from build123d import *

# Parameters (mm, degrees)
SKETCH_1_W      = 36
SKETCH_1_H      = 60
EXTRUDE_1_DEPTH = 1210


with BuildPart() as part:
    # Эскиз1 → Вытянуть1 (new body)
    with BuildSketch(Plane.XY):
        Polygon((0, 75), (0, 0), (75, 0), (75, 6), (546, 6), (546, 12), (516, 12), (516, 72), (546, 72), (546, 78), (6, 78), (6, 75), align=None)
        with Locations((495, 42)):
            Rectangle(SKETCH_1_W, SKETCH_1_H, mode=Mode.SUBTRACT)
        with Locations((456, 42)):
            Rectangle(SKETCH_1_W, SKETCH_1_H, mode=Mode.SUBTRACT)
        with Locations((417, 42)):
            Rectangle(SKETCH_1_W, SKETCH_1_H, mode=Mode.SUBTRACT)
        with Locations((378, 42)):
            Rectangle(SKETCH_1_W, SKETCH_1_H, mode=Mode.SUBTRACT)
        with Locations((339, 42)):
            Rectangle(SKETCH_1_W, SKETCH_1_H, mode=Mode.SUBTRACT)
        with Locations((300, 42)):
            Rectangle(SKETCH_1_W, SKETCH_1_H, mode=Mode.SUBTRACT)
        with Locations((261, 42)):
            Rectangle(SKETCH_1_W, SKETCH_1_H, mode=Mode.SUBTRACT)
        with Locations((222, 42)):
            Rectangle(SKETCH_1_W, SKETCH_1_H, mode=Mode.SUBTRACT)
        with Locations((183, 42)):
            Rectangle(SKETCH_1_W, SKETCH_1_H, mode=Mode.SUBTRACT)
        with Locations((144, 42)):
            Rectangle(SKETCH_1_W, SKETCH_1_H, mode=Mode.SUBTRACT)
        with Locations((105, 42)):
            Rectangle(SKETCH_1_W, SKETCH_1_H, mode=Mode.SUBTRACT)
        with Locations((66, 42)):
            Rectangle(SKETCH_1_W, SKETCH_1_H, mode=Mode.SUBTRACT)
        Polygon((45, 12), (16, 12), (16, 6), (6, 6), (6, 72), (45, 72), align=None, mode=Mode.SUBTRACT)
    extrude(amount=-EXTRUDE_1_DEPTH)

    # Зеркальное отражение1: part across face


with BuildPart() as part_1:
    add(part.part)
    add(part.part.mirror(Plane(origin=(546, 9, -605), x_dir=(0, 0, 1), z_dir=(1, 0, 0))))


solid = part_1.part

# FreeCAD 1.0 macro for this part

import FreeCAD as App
import Part
import Sketcher

doc = App.newDocument("Part")
body = doc.addObject("PartDesign::Body", "Body")

# Sketch on XY plane
sketch1 = body.newObject("Sketcher::SketchObject", "Sketch")
sketch1.AttachmentSupport = (doc.getObject("XY_Plane"), [""])
sketch1.MapMode = "FlatFace"
sketch1.addGeometry([
    Part.LineSegment(App.Vector(0, 75, 0), App.Vector(0, 0, 0)),  # 0
    Part.LineSegment(App.Vector(0, 0, 0), App.Vector(75, 0, 0)),  # 1
    Part.LineSegment(App.Vector(75, 0, 0), App.Vector(75, 6, 0)),  # 2
    Part.LineSegment(App.Vector(75, 6, 0), App.Vector(546, 6, 0)),  # 3
    Part.LineSegment(App.Vector(546, 6, 0), App.Vector(546, 12, 0)),  # 4
    Part.LineSegment(App.Vector(546, 12, 0), App.Vector(516, 12, 0)),  # 5
    Part.LineSegment(App.Vector(516, 12, 0), App.Vector(516, 72, 0)),  # 6
    Part.LineSegment(App.Vector(516, 72, 0), App.Vector(546, 72, 0)),  # 7
    Part.LineSegment(App.Vector(546, 72, 0), App.Vector(546, 78, 0)),  # 8
    Part.LineSegment(App.Vector(546, 78, 0), App.Vector(6, 78, 0)),  # 9
    Part.LineSegment(App.Vector(6, 78, 0), App.Vector(6, 75, 0)),  # 10
    Part.LineSegment(App.Vector(6, 75, 0), App.Vector(0, 75, 0)),  # 11
    Part.LineSegment(App.Vector(45, 72, 0), App.Vector(45, 12, 0)),  # 12
    Part.LineSegment(App.Vector(45, 12, 0), App.Vector(16, 12, 0)),  # 13
    Part.LineSegment(App.Vector(16, 12, 0), App.Vector(16, 6, 0)),  # 14
    Part.LineSegment(App.Vector(16, 6, 0), App.Vector(6, 6, 0)),  # 15
    Part.LineSegment(App.Vector(6, 6, 0), App.Vector(6, 72, 0)),  # 16
    Part.LineSegment(App.Vector(6, 72, 0), App.Vector(45, 72, 0)),  # 17
    Part.LineSegment(App.Vector(84, 12, 0), App.Vector(48, 12, 0)),  # 18
    Part.LineSegment(App.Vector(48, 12, 0), App.Vector(48, 72, 0)),  # 19
    Part.LineSegment(App.Vector(48, 72, 0), App.Vector(84, 72, 0)),  # 20
    Part.LineSegment(App.Vector(84, 72, 0), App.Vector(84, 12, 0)),  # 21
    Part.LineSegment(App.Vector(123, 12, 0), App.Vector(87, 12, 0)),  # 22
    Part.LineSegment(App.Vector(87, 12, 0), App.Vector(87, 72, 0)),  # 23
    Part.LineSegment(App.Vector(87, 72, 0), App.Vector(123, 72, 0)),  # 24
    Part.LineSegment(App.Vector(123, 72, 0), App.Vector(123, 12, 0)),  # 25
    Part.LineSegment(App.Vector(162, 12, 0), App.Vector(126, 12, 0)),  # 26
    Part.LineSegment(App.Vector(126, 12, 0), App.Vector(126, 72, 0)),  # 27
    Part.LineSegment(App.Vector(126, 72, 0), App.Vector(162, 72, 0)),  # 28
    Part.LineSegment(App.Vector(162, 72, 0), App.Vector(162, 12, 0)),  # 29
    Part.LineSegment(App.Vector(201, 12, 0), App.Vector(165, 12, 0)),  # 30
    Part.LineSegment(App.Vector(165, 12, 0), App.Vector(165, 72, 0)),  # 31
    Part.LineSegment(App.Vector(165, 72, 0), App.Vector(201, 72, 0)),  # 32
    Part.LineSegment(App.Vector(201, 72, 0), App.Vector(201, 12, 0)),  # 33
    Part.LineSegment(App.Vector(240, 12, 0), App.Vector(204, 12, 0)),  # 34
    Part.LineSegment(App.Vector(204, 12, 0), App.Vector(204, 72, 0)),  # 35
    Part.LineSegment(App.Vector(204, 72, 0), App.Vector(240, 72, 0)),  # 36
    Part.LineSegment(App.Vector(240, 72, 0), App.Vector(240, 12, 0)),  # 37
    Part.LineSegment(App.Vector(279, 12, 0), App.Vector(243, 12, 0)),  # 38
    Part.LineSegment(App.Vector(243, 12, 0), App.Vector(243, 72, 0)),  # 39
    Part.LineSegment(App.Vector(243, 72, 0), App.Vector(279, 72, 0)),  # 40
    Part.LineSegment(App.Vector(279, 72, 0), App.Vector(279, 12, 0)),  # 41
    Part.LineSegment(App.Vector(318, 12, 0), App.Vector(282, 12, 0)),  # 42
    Part.LineSegment(App.Vector(282, 12, 0), App.Vector(282, 72, 0)),  # 43
    Part.LineSegment(App.Vector(282, 72, 0), App.Vector(318, 72, 0)),  # 44
    Part.LineSegment(App.Vector(318, 72, 0), App.Vector(318, 12, 0)),  # 45
    Part.LineSegment(App.Vector(357, 12, 0), App.Vector(321, 12, 0)),  # 46
    Part.LineSegment(App.Vector(321, 12, 0), App.Vector(321, 72, 0)),  # 47
    Part.LineSegment(App.Vector(321, 72, 0), App.Vector(357, 72, 0)),  # 48
    Part.LineSegment(App.Vector(357, 72, 0), App.Vector(357, 12, 0)),  # 49
    Part.LineSegment(App.Vector(396, 12, 0), App.Vector(360, 12, 0)),  # 50
    Part.LineSegment(App.Vector(360, 12, 0), App.Vector(360, 72, 0)),  # 51
    Part.LineSegment(App.Vector(360, 72, 0), App.Vector(396, 72, 0)),  # 52
    Part.LineSegment(App.Vector(396, 72, 0), App.Vector(396, 12, 0)),  # 53
    Part.LineSegment(App.Vector(435, 12, 0), App.Vector(399, 12, 0)),  # 54
    Part.LineSegment(App.Vector(399, 12, 0), App.Vector(399, 72, 0)),  # 55
    Part.LineSegment(App.Vector(399, 72, 0), App.Vector(435, 72, 0)),  # 56
    Part.LineSegment(App.Vector(435, 72, 0), App.Vector(435, 12, 0)),  # 57
    Part.LineSegment(App.Vector(474, 12, 0), App.Vector(438, 12, 0)),  # 58
    Part.LineSegment(App.Vector(438, 12, 0), App.Vector(438, 72, 0)),  # 59
    Part.LineSegment(App.Vector(438, 72, 0), App.Vector(474, 72, 0)),  # 60
    Part.LineSegment(App.Vector(474, 72, 0), App.Vector(474, 12, 0)),  # 61
    Part.LineSegment(App.Vector(513, 12, 0), App.Vector(477, 12, 0)),  # 62
    Part.LineSegment(App.Vector(477, 12, 0), App.Vector(477, 72, 0)),  # 63
    Part.LineSegment(App.Vector(477, 72, 0), App.Vector(513, 72, 0)),  # 64
    Part.LineSegment(App.Vector(513, 72, 0), App.Vector(513, 12, 0)),  # 65
], False)
sketch1.addConstraint([
    Sketcher.Constraint("Coincident", 0, 2, 1, 1),
    Sketcher.Constraint("Coincident", 1, 2, 2, 1),
    Sketcher.Constraint("Coincident", 2, 2, 3, 1),
    Sketcher.Constraint("Coincident", 3, 2, 4, 1),
    Sketcher.Constraint("Coincident", 4, 2, 5, 1),
    Sketcher.Constraint("Coincident", 5, 2, 6, 1),
    Sketcher.Constraint("Coincident", 6, 2, 7, 1),
    Sketcher.Constraint("Coincident", 7, 2, 8, 1),
    Sketcher.Constraint("Coincident", 8, 2, 9, 1),
    Sketcher.Constraint("Coincident", 9, 2, 10, 1),
    Sketcher.Constraint("Coincident", 10, 2, 11, 1),
    Sketcher.Constraint("Coincident", 11, 2, 0, 1),
    Sketcher.Constraint("Coincident", 12, 2, 13, 1),
    Sketcher.Constraint("Coincident", 13, 2, 14, 1),
    Sketcher.Constraint("Coincident", 14, 2, 15, 1),
    Sketcher.Constraint("Coincident", 15, 2, 16, 1),
    Sketcher.Constraint("Coincident", 16, 2, 17, 1),
    Sketcher.Constraint("Coincident", 17, 2, 12, 1),
    Sketcher.Constraint("Coincident", 18, 2, 19, 1),
    Sketcher.Constraint("Coincident", 19, 2, 20, 1),
    Sketcher.Constraint("Coincident", 20, 2, 21, 1),
    Sketcher.Constraint("Coincident", 21, 2, 18, 1),
    Sketcher.Constraint("Coincident", 22, 2, 23, 1),
    Sketcher.Constraint("Coincident", 23, 2, 24, 1),
    Sketcher.Constraint("Coincident", 24, 2, 25, 1),
    Sketcher.Constraint("Coincident", 25, 2, 22, 1),
    Sketcher.Constraint("Coincident", 26, 2, 27, 1),
    Sketcher.Constraint("Coincident", 27, 2, 28, 1),
    Sketcher.Constraint("Coincident", 28, 2, 29, 1),
    Sketcher.Constraint("Coincident", 29, 2, 26, 1),
    Sketcher.Constraint("Coincident", 30, 2, 31, 1),
    Sketcher.Constraint("Coincident", 31, 2, 32, 1),
    Sketcher.Constraint("Coincident", 32, 2, 33, 1),
    Sketcher.Constraint("Coincident", 33, 2, 30, 1),
    Sketcher.Constraint("Coincident", 34, 2, 35, 1),
    Sketcher.Constraint("Coincident", 35, 2, 36, 1),
    Sketcher.Constraint("Coincident", 36, 2, 37, 1),
    Sketcher.Constraint("Coincident", 37, 2, 34, 1),
    Sketcher.Constraint("Coincident", 38, 2, 39, 1),
    Sketcher.Constraint("Coincident", 39, 2, 40, 1),
    Sketcher.Constraint("Coincident", 40, 2, 41, 1),
    Sketcher.Constraint("Coincident", 41, 2, 38, 1),
    Sketcher.Constraint("Coincident", 42, 2, 43, 1),
    Sketcher.Constraint("Coincident", 43, 2, 44, 1),
    Sketcher.Constraint("Coincident", 44, 2, 45, 1),
    Sketcher.Constraint("Coincident", 45, 2, 42, 1),
    Sketcher.Constraint("Coincident", 46, 2, 47, 1),
    Sketcher.Constraint("Coincident", 47, 2, 48, 1),
    Sketcher.Constraint("Coincident", 48, 2, 49, 1),
    Sketcher.Constraint("Coincident", 49, 2, 46, 1),
    Sketcher.Constraint("Coincident", 50, 2, 51, 1),
    Sketcher.Constraint("Coincident", 51, 2, 52, 1),
    Sketcher.Constraint("Coincident", 52, 2, 53, 1),
    Sketcher.Constraint("Coincident", 53, 2, 50, 1),
    Sketcher.Constraint("Coincident", 54, 2, 55, 1),
    Sketcher.Constraint("Coincident", 55, 2, 56, 1),
    Sketcher.Constraint("Coincident", 56, 2, 57, 1),
    Sketcher.Constraint("Coincident", 57, 2, 54, 1),
    Sketcher.Constraint("Coincident", 58, 2, 59, 1),
    Sketcher.Constraint("Coincident", 59, 2, 60, 1),
    Sketcher.Constraint("Coincident", 60, 2, 61, 1),
    Sketcher.Constraint("Coincident", 61, 2, 58, 1),
    Sketcher.Constraint("Coincident", 62, 2, 63, 1),
    Sketcher.Constraint("Coincident", 63, 2, 64, 1),
    Sketcher.Constraint("Coincident", 64, 2, 65, 1),
    Sketcher.Constraint("Coincident", 65, 2, 62, 1),
    Sketcher.Constraint("Vertical", 0),
    Sketcher.Constraint("Horizontal", 1),
    Sketcher.Constraint("Vertical", 2),
    Sketcher.Constraint("Horizontal", 3),
    Sketcher.Constraint("Vertical", 4),
    Sketcher.Constraint("Horizontal", 5),
    Sketcher.Constraint("Vertical", 6),
    Sketcher.Constraint("Horizontal", 7),
    Sketcher.Constraint("Vertical", 8),
    Sketcher.Constraint("Horizontal", 9),
    Sketcher.Constraint("Vertical", 10),
    Sketcher.Constraint("Horizontal", 11),
    Sketcher.Constraint("Vertical", 12),
    Sketcher.Constraint("Horizontal", 13),
    Sketcher.Constraint("Vertical", 14),
    Sketcher.Constraint("Horizontal", 15),
    Sketcher.Constraint("Vertical", 16),
    Sketcher.Constraint("Horizontal", 17),
    Sketcher.Constraint("Horizontal", 18),
    Sketcher.Constraint("Vertical", 19),
    Sketcher.Constraint("Horizontal", 20),
    Sketcher.Constraint("Vertical", 21),
    Sketcher.Constraint("Horizontal", 22),
    Sketcher.Constraint("Vertical", 23),
    Sketcher.Constraint("Horizontal", 24),
    Sketcher.Constraint("Vertical", 25),
    Sketcher.Constraint("Horizontal", 26),
    Sketcher.Constraint("Vertical", 27),
    Sketcher.Constraint("Horizontal", 28),
    Sketcher.Constraint("Vertical", 29),
    Sketcher.Constraint("Horizontal", 30),
    Sketcher.Constraint("Vertical", 31),
    Sketcher.Constraint("Horizontal", 32),
    Sketcher.Constraint("Vertical", 33),
    Sketcher.Constraint("Horizontal", 34),
    Sketcher.Constraint("Vertical", 35),
    Sketcher.Constraint("Horizontal", 36),
    Sketcher.Constraint("Vertical", 37),
    Sketcher.Constraint("Horizontal", 38),
    Sketcher.Constraint("Vertical", 39),
    Sketcher.Constraint("Horizontal", 40),
    Sketcher.Constraint("Vertical", 41),
    Sketcher.Constraint("Horizontal", 42),
    Sketcher.Constraint("Vertical", 43),
    Sketcher.Constraint("Horizontal", 44),
    Sketcher.Constraint("Vertical", 45),
    Sketcher.Constraint("Horizontal", 46),
    Sketcher.Constraint("Vertical", 47),
    Sketcher.Constraint("Horizontal", 48),
    Sketcher.Constraint("Vertical", 49),
    Sketcher.Constraint("Horizontal", 50),
    Sketcher.Constraint("Vertical", 51),
    Sketcher.Constraint("Horizontal", 52),
    Sketcher.Constraint("Vertical", 53),
    Sketcher.Constraint("Horizontal", 54),
    Sketcher.Constraint("Vertical", 55),
    Sketcher.Constraint("Horizontal", 56),
    Sketcher.Constraint("Vertical", 57),
    Sketcher.Constraint("Horizontal", 58),
    Sketcher.Constraint("Vertical", 59),
    Sketcher.Constraint("Horizontal", 60),
    Sketcher.Constraint("Vertical", 61),
    Sketcher.Constraint("Horizontal", 62),
    Sketcher.Constraint("Vertical", 63),
    Sketcher.Constraint("Horizontal", 64),
    Sketcher.Constraint("Vertical", 65),
    Sketcher.Constraint("Coincident", 0, 2, -1, 1),
    Sketcher.Constraint("Horizontal", 5, 2, 12, 2),
    Sketcher.Constraint("Horizontal", 3, 2, 14, 2),
    Sketcher.Constraint("Horizontal", 7, 2, 16, 2),
    Sketcher.Constraint("Horizontal", 13, 2, 18, 2),
    Sketcher.Constraint("Horizontal", 17, 2, 19, 2),
    Sketcher.Constraint("Horizontal", 21, 2, 22, 2),
    Sketcher.Constraint("Horizontal", 20, 2, 23, 2),
    Sketcher.Constraint("Horizontal", 25, 2, 26, 2),
    Sketcher.Constraint("Horizontal", 24, 2, 27, 2),
    Sketcher.Constraint("Horizontal", 29, 2, 30, 2),
    Sketcher.Constraint("Horizontal", 28, 2, 31, 2),
    Sketcher.Constraint("Horizontal", 33, 2, 34, 2),
    Sketcher.Constraint("Horizontal", 32, 2, 35, 2),
    Sketcher.Constraint("Horizontal", 37, 2, 38, 2),
    Sketcher.Constraint("Horizontal", 36, 2, 39, 2),
    Sketcher.Constraint("Horizontal", 41, 2, 42, 2),
    Sketcher.Constraint("Horizontal", 40, 2, 43, 2),
    Sketcher.Constraint("Horizontal", 45, 2, 46, 2),
    Sketcher.Constraint("Horizontal", 44, 2, 47, 2),
    Sketcher.Constraint("Horizontal", 49, 2, 50, 2),
    Sketcher.Constraint("Horizontal", 48, 2, 51, 2),
    Sketcher.Constraint("Horizontal", 53, 2, 54, 2),
    Sketcher.Constraint("Horizontal", 52, 2, 55, 2),
    Sketcher.Constraint("Horizontal", 57, 2, 58, 2),
    Sketcher.Constraint("Horizontal", 56, 2, 59, 2),
    Sketcher.Constraint("Horizontal", 61, 2, 62, 2),
    Sketcher.Constraint("Horizontal", 60, 2, 63, 2),
    Sketcher.Constraint("Vertical", 4, 2, 7, 2),
    Sketcher.Constraint("Vertical", 10, 2, 15, 2),
    Sketcher.Constraint("Equal", 20, 22),
    Sketcher.Constraint("Equal", 24, 26),
    Sketcher.Constraint("Equal", 28, 30),
    Sketcher.Constraint("Equal", 32, 34),
    Sketcher.Constraint("Equal", 36, 38),
    Sketcher.Constraint("Equal", 40, 42),
    Sketcher.Constraint("Equal", 44, 46),
    Sketcher.Constraint("Equal", 48, 50),
    Sketcher.Constraint("Equal", 52, 54),
    Sketcher.Constraint("Equal", 56, 58),
    Sketcher.Constraint("Equal", 60, 62),
    Sketcher.Constraint("Equal", 1, 0),
    Sketcher.Constraint("Equal", 11, 2),
    Sketcher.Constraint("Equal", 2, 4),
    Sketcher.Constraint("Equal", 4, 8),
    Sketcher.Constraint("DistanceX", 1, 1, 1, 2, 75.0),
    Sketcher.Constraint("DistanceX", 3, 1, 3, 2, 471.0),
    Sketcher.Constraint("DistanceX", 5, 2, 5, 1, 30.0),
    Sketcher.Constraint("DistanceX", 9, 2, 9, 1, 540.0),
    Sketcher.Constraint("DistanceX", 13, 2, 13, 1, 29.0),
    Sketcher.Constraint("DistanceX", 15, 2, 15, 1, 10.0),
    Sketcher.Constraint("DistanceX", 18, 2, 18, 1, 36.0),
    Sketcher.Constraint("DistanceY", 6, 1, 6, 2, 60.0),
    Sketcher.Constraint("DistanceX", -1, 1, 18, 2, 48.0),
    Sketcher.Constraint("DistanceX", -1, 1, 22, 2, 87.0),
    Sketcher.Constraint("DistanceX", -1, 1, 26, 2, 126.0),
    Sketcher.Constraint("DistanceX", -1, 1, 30, 2, 165.0),
    Sketcher.Constraint("DistanceX", -1, 1, 34, 2, 204.0),
    Sketcher.Constraint("DistanceX", -1, 1, 38, 2, 243.0),
    Sketcher.Constraint("DistanceX", -1, 1, 42, 2, 282.0),
    Sketcher.Constraint("DistanceX", -1, 1, 46, 2, 321.0),
    Sketcher.Constraint("DistanceX", -1, 1, 50, 2, 360.0),
    Sketcher.Constraint("DistanceX", -1, 1, 54, 2, 399.0),
    Sketcher.Constraint("DistanceX", -1, 1, 58, 2, 438.0),
    Sketcher.Constraint("DistanceX", -1, 1, 62, 2, 477.0),
])
pad1 = body.newObject("PartDesign::Pad", "Pad")
pad1.Profile = sketch1
pad1.Length = 1210
pad1.Reversed = True
body2 = doc.addObject("PartDesign::Body", "Body001")
doc.recompute()

body2.BaseFeature = body
doc.recompute()

mirroring = doc.addObject("Part::Mirroring", "Mirroring")
mirroring.Source = body
mirroring.Base = App.Vector(546, 9, -605)
mirroring.Normal = App.Vector(1, 0, 0)
body3 = doc.addObject("PartDesign::Body", "Body002")
body3.BaseFeature = mirroring
boolean = body2.newObject("PartDesign::Boolean", "Boolean")
boolean.Type = "Fuse"
boolean.addObjects([body3])
doc.recompute()
mirroring.Visibility = False

doc.recompute()
